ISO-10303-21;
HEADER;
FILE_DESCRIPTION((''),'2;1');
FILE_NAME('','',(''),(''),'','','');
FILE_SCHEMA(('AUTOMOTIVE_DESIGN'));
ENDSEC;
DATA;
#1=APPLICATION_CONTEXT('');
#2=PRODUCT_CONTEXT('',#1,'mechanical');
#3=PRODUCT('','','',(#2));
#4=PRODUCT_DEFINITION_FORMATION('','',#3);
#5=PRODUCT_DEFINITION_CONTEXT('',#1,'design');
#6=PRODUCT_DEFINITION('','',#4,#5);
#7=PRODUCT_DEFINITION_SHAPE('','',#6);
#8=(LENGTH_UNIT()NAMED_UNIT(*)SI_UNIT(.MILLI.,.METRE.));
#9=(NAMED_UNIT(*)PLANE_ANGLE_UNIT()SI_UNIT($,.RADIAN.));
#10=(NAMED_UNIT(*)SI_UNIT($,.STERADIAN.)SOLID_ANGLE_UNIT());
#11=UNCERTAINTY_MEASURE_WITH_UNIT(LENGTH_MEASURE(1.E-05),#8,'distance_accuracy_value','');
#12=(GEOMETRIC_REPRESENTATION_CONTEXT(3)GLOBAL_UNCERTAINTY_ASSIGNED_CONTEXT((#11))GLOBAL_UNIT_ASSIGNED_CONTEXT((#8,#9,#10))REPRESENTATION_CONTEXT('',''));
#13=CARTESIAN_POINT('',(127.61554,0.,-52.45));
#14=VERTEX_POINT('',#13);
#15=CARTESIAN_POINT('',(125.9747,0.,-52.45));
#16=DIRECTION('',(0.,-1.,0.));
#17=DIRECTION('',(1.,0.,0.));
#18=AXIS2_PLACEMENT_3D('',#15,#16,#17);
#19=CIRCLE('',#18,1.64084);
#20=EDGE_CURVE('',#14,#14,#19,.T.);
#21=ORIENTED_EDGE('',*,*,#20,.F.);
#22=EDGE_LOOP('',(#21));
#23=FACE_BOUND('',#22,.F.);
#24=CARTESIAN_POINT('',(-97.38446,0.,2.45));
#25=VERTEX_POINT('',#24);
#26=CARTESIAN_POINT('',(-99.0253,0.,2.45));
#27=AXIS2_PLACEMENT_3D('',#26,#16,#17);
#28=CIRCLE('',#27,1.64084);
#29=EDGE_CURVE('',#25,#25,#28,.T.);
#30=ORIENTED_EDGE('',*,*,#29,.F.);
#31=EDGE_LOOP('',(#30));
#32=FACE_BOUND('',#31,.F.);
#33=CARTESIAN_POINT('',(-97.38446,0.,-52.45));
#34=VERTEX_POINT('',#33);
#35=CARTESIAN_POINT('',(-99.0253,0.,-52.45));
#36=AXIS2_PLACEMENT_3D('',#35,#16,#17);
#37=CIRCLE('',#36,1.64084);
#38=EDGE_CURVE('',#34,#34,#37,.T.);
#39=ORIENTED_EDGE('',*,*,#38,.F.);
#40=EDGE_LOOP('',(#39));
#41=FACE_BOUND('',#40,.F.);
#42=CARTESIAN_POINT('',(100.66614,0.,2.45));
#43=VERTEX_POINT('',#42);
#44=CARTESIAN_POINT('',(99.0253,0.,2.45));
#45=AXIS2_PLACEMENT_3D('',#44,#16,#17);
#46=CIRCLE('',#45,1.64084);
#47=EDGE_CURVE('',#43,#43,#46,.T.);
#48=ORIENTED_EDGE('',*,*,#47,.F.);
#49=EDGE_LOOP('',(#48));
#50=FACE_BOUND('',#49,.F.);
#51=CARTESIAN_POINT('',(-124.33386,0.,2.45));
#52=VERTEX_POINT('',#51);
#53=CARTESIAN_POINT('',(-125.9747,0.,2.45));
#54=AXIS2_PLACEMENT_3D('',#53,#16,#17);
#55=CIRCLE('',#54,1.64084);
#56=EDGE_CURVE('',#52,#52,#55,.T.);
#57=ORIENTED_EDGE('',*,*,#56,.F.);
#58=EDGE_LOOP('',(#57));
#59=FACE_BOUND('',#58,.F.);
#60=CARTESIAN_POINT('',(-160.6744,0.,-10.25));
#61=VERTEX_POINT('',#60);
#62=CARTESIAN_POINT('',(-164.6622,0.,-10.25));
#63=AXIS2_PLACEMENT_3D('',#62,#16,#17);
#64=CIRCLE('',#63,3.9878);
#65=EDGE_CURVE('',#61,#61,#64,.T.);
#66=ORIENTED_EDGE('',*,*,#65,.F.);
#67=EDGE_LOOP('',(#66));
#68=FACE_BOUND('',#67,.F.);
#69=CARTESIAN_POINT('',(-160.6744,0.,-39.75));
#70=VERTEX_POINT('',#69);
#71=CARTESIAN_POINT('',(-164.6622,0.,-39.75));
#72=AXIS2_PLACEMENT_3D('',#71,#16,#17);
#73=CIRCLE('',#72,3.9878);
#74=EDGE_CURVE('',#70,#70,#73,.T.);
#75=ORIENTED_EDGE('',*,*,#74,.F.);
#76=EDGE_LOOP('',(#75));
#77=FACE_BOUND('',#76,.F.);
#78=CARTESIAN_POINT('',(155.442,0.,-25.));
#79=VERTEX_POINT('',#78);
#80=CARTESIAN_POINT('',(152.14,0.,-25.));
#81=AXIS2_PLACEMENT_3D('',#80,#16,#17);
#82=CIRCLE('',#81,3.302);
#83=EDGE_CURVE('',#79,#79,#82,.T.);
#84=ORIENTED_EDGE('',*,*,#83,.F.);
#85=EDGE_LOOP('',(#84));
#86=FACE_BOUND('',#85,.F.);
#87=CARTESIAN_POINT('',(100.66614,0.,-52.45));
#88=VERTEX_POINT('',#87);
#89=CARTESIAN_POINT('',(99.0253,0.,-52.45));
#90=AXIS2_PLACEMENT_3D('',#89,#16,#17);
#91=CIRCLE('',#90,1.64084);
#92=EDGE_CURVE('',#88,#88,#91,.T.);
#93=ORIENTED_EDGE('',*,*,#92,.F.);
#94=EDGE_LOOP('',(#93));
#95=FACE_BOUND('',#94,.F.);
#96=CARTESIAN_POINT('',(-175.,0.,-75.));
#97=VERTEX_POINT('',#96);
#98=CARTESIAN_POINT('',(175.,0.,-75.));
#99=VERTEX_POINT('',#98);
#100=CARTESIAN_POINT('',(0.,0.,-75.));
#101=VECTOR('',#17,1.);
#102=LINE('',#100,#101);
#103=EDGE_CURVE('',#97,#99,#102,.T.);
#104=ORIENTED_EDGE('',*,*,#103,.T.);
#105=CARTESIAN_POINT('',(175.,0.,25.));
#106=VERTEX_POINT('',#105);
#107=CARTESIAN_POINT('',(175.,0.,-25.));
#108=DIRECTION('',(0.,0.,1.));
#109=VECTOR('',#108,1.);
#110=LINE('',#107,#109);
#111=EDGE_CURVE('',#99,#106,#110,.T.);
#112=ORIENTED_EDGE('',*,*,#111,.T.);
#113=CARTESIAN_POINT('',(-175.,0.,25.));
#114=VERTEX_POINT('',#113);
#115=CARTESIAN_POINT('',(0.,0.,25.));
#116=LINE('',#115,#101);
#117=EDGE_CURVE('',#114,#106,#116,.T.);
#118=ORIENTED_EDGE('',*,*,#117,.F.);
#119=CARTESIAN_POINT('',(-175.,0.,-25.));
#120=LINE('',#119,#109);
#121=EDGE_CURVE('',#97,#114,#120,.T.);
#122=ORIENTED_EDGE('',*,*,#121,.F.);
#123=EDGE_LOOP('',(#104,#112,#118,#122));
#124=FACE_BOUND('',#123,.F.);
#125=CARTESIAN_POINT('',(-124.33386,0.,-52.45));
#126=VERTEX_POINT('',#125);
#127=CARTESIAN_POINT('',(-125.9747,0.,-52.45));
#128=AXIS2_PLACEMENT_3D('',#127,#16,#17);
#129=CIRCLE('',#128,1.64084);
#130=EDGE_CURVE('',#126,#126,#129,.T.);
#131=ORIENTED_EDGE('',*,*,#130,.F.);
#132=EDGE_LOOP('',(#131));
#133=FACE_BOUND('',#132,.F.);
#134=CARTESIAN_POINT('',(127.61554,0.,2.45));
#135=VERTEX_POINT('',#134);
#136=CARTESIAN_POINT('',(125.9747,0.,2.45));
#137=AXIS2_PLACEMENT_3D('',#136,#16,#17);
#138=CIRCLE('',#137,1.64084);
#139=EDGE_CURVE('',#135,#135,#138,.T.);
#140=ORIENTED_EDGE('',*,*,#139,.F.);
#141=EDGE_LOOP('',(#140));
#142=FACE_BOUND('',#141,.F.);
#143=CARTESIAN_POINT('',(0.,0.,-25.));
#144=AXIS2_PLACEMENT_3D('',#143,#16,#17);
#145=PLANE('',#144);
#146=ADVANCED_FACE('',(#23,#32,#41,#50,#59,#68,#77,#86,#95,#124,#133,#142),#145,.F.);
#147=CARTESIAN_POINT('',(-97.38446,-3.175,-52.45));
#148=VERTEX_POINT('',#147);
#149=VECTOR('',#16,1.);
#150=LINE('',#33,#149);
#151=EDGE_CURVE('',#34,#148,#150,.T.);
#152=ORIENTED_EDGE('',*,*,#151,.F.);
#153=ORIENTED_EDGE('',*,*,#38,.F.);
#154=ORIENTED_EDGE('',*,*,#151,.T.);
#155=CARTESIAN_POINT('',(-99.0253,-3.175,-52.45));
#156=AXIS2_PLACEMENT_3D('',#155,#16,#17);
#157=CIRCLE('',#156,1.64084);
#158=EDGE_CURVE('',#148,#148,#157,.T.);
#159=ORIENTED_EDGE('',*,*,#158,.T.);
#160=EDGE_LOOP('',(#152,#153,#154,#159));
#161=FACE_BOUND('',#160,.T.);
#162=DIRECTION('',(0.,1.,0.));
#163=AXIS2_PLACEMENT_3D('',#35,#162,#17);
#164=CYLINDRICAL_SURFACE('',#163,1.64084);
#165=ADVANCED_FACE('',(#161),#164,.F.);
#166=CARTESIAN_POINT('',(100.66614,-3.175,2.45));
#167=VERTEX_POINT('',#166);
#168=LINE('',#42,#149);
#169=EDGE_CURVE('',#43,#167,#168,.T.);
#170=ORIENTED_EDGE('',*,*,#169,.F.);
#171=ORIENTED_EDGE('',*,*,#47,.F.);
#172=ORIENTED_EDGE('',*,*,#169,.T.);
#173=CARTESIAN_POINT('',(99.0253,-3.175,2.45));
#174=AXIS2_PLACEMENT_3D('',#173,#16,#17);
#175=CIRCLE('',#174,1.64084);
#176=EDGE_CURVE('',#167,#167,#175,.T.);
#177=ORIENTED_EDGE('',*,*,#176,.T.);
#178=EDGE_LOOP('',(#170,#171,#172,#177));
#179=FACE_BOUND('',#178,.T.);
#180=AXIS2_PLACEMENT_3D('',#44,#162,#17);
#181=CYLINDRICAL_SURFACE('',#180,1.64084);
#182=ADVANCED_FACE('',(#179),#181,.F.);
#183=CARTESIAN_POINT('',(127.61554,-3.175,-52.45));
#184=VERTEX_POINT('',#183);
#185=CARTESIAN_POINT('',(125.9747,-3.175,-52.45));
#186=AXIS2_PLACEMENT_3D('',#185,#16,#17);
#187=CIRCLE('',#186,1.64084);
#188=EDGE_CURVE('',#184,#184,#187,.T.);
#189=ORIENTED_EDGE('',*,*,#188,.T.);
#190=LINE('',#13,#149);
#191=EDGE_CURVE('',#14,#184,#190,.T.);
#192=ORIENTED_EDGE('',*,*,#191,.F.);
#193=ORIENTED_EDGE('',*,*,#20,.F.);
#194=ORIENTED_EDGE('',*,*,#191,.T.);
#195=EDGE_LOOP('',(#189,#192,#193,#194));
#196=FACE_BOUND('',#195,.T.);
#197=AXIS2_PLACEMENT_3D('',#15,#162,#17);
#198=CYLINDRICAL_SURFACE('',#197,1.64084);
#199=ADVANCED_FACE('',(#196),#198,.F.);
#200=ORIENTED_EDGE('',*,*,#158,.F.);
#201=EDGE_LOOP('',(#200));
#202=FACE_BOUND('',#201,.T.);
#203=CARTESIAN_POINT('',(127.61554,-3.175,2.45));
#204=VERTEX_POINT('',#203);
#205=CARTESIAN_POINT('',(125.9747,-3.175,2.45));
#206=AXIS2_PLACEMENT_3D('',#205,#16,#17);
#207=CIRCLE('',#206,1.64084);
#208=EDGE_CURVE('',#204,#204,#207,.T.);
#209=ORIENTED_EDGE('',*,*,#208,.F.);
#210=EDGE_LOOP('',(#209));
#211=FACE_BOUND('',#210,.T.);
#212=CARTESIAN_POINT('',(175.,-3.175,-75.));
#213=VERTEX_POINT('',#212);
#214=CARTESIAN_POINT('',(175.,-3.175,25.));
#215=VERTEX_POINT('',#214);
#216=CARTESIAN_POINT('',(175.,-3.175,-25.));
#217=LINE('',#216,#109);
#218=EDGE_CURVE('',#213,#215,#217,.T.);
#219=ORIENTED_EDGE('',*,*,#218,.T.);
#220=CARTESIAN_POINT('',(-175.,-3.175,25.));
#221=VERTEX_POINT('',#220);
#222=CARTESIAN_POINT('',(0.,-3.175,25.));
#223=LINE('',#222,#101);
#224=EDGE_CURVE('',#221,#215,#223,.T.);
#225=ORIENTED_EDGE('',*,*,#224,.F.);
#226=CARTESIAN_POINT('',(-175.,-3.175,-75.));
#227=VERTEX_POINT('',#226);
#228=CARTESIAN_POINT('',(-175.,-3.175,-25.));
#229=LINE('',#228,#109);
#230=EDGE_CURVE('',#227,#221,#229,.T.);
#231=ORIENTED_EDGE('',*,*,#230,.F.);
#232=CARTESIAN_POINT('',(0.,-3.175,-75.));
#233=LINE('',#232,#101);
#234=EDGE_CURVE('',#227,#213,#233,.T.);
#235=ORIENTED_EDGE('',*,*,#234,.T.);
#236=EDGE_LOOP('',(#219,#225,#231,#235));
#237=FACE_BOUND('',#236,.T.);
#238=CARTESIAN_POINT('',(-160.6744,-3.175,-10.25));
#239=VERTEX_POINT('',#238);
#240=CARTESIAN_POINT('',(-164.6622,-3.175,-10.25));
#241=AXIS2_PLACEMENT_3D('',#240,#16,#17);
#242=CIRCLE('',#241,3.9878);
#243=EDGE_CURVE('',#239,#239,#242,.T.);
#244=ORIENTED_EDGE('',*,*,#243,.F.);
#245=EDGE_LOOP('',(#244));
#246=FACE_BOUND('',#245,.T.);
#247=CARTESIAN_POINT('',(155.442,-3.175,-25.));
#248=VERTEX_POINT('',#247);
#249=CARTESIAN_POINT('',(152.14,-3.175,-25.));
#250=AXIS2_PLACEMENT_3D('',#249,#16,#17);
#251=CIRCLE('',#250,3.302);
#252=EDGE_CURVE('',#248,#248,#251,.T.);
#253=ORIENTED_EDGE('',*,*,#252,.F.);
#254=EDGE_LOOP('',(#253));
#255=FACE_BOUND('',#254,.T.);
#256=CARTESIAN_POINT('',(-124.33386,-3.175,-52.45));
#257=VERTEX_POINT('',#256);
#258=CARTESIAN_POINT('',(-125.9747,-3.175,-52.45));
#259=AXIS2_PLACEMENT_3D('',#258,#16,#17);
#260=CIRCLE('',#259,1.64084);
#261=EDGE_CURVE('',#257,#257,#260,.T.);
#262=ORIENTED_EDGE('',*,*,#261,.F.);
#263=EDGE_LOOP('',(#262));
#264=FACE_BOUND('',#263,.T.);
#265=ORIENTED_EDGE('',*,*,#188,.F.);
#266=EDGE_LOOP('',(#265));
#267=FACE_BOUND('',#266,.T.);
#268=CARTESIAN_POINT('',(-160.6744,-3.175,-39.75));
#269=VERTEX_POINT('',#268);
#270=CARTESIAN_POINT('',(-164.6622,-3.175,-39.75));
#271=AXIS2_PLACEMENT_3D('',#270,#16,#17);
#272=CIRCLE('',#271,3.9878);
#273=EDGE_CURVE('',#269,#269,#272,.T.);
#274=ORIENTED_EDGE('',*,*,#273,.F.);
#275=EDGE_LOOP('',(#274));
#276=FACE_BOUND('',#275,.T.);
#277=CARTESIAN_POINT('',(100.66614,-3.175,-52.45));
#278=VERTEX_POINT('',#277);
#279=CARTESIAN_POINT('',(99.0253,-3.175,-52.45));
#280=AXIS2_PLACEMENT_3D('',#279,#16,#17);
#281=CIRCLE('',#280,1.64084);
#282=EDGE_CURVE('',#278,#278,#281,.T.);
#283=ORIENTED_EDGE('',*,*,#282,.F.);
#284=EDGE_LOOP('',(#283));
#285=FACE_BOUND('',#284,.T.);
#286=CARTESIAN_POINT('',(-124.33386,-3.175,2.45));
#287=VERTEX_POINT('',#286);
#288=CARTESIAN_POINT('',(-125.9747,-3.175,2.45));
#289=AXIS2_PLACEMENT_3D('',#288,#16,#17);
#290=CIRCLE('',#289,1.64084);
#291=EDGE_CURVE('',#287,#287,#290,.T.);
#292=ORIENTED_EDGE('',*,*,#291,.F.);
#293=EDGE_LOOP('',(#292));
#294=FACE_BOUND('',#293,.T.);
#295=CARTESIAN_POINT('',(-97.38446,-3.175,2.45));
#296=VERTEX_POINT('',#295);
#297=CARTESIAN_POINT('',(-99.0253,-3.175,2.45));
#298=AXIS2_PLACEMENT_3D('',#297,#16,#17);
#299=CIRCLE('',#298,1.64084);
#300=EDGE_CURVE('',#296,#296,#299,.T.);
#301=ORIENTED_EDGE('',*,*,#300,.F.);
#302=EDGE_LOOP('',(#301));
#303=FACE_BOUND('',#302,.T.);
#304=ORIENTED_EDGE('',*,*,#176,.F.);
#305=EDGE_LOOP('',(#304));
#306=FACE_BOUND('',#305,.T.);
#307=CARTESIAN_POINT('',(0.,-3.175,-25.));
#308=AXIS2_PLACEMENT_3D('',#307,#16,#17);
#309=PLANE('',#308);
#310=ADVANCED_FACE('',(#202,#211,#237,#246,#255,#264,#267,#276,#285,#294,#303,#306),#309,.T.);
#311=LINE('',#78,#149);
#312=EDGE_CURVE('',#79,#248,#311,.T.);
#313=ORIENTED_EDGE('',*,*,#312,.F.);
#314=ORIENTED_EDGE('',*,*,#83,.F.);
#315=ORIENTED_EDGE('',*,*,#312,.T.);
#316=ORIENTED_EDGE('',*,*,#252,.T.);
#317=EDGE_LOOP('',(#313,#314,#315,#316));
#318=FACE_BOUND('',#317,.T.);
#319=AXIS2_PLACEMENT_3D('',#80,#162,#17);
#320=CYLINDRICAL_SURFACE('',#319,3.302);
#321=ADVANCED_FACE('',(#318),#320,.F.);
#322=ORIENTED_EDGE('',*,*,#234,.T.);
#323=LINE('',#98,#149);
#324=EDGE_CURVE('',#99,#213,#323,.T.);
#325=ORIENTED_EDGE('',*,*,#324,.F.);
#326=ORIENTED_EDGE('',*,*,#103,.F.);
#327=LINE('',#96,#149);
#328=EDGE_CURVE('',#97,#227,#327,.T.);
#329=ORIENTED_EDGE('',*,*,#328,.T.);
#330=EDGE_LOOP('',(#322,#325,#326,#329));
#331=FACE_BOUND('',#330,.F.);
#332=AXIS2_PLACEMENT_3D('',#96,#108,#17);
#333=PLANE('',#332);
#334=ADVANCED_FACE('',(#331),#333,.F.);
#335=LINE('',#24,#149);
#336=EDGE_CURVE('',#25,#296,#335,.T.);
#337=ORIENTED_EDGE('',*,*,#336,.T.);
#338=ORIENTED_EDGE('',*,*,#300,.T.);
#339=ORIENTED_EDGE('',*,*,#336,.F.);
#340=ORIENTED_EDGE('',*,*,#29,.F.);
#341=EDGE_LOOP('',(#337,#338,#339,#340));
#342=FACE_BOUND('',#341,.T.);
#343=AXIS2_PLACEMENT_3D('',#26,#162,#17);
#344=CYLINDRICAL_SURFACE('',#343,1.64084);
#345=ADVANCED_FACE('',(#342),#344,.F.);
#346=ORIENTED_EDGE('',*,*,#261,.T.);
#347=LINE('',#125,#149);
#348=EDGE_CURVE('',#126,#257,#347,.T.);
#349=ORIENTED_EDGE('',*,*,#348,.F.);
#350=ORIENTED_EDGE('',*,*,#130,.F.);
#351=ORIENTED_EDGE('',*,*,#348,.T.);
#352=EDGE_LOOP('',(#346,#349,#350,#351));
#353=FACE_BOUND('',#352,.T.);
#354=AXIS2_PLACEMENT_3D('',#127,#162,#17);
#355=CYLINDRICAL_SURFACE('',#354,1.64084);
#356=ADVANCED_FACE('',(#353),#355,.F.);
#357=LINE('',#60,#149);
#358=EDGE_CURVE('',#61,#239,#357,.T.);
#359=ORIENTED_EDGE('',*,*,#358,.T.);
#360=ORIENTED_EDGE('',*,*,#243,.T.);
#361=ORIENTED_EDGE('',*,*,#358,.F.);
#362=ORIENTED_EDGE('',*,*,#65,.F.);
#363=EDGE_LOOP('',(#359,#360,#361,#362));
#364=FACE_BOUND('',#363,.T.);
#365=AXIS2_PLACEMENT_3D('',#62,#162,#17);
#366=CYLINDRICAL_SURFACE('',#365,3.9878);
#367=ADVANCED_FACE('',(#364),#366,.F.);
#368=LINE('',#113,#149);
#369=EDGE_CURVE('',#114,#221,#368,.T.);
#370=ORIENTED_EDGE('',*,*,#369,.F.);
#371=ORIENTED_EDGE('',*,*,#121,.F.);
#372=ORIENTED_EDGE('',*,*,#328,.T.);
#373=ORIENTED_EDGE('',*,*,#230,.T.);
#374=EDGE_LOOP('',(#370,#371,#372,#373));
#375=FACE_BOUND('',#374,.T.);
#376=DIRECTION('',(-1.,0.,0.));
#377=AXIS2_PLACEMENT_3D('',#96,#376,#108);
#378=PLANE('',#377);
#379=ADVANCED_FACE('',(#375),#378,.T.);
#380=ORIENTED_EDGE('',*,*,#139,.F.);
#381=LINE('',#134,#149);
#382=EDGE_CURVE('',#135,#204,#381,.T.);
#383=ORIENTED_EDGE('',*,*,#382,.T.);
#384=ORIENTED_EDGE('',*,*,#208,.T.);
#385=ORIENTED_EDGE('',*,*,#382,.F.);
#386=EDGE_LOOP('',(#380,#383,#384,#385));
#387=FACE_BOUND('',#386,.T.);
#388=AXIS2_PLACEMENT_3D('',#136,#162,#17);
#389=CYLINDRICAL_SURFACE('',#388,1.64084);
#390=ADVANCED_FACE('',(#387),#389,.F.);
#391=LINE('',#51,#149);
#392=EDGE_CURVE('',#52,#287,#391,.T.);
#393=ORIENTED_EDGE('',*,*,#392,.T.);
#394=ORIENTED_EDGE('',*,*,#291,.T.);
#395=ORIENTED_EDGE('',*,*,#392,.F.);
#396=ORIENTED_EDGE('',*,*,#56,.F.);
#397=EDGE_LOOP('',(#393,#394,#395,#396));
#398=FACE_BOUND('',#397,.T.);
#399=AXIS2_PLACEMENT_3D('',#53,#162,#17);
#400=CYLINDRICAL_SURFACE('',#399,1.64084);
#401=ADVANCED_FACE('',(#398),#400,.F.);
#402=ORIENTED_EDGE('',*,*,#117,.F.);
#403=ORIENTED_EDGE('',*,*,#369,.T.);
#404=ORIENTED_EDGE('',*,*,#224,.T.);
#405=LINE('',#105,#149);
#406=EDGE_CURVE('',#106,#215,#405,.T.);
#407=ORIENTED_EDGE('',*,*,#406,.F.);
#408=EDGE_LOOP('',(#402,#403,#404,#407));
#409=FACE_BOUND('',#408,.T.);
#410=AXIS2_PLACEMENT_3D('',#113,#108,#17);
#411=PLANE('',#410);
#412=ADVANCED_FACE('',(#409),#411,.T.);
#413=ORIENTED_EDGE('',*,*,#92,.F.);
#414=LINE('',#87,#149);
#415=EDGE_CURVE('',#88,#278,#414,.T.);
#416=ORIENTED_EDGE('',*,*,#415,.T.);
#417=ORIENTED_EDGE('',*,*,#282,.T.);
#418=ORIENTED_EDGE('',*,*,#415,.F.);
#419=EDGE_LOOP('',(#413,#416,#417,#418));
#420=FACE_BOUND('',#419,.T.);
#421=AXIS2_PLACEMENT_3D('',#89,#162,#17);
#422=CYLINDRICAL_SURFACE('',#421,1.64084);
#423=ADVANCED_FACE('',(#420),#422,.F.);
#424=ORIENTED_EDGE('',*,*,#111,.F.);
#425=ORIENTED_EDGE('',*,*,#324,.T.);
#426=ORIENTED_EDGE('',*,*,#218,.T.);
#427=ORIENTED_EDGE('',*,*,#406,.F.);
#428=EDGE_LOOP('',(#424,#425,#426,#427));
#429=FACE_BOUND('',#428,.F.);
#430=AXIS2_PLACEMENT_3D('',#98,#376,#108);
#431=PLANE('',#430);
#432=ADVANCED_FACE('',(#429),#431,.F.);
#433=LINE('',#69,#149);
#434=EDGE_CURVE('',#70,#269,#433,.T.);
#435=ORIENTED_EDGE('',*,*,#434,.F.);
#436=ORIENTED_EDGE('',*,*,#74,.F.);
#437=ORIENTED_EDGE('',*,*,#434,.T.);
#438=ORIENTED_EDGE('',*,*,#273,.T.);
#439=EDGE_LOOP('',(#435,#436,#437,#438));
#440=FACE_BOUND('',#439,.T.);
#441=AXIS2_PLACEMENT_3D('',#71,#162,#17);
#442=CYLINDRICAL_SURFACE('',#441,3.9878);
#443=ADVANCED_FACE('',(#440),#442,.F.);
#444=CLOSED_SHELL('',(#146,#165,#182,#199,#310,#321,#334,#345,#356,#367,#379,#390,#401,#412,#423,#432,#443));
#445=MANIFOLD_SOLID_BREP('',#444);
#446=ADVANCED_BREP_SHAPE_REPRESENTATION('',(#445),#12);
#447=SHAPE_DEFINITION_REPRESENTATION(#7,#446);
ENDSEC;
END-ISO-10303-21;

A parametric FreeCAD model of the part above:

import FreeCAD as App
import Part
import Sketcher

V = App.Vector
Q = App.Units.Quantity


def add_polygon(sketch, points):
    """Adds a closed chain of lines whose ends are joined by coincident constraints."""
    first, n = sketch.GeometryCount, len(points)
    for a, b in zip(points, points[1:] + points[:1]):
        sketch.addGeometry(Part.LineSegment(App.Vector(*a, 0), App.Vector(*b, 0)), False)
    for i in range(n):
        sketch.addConstraint(Sketcher.Constraint("Coincident", first + i, 2, first + (i + 1) % n, 1))

doc = App.newDocument("Part")
body = doc.addObject("PartDesign::Body", "Body")

# Sketch on XZ plane
sketch1 = doc.addObject("Sketcher::SketchObject", "Sketch")
body.addObject(sketch1)
sketch1.AttachmentSupport = (doc.XZ_Plane, [""])
sketch1.MapMode = "FlatFace"
add_polygon(sketch1, [(-175, 25), (-175, -75), (175, -75), (175, 25)])  # lines 0-3
sketch1.addGeometry(Part.Circle(V(-126, -52.5, 0), V(0, 0, 1), 1.6), False)  # 4
sketch1.addGeometry(Part.Circle(V(-99, -52.5, 0), V(0, 0, 1), 1.6), False)  # 5
sketch1.addGeometry(Part.Circle(V(-164.7, -39.8, 0), V(0, 0, 1), 4), False)  # 6
sketch1.addGeometry(Part.Circle(V(99, -52.5, 0), V(0, 0, 1), 1.6), False)  # 7
sketch1.addGeometry(Part.Circle(V(126, -52.5, 0), V(0, 0, 1), 1.6), False)  # 8
sketch1.addGeometry(Part.Circle(V(-164.7, -10.2, 0), V(0, 0, 1), 4), False)  # 9
sketch1.addGeometry(Part.Circle(V(-126, 2.5, 0), V(0, 0, 1), 1.6), False)  # 10
sketch1.addGeometry(Part.Circle(V(-99, 2.5, 0), V(0, 0, 1), 1.6), False)  # 11
sketch1.addGeometry(Part.Circle(V(152.1, -25, 0), V(0, 0, 1), 3.3), False)  # 12
sketch1.addGeometry(Part.Circle(V(99, 2.5, 0), V(0, 0, 1), 1.6), False)  # 13
sketch1.addGeometry(Part.Circle(V(126, 2.5, 0), V(0, 0, 1), 1.6), False)  # 14
sketch1.addConstraint(Sketcher.Constraint("Vertical", 0))
sketch1.addConstraint(Sketcher.Constraint("Horizontal", 1))
sketch1.addConstraint(Sketcher.Constraint("Vertical", 2))
sketch1.addConstraint(Sketcher.Constraint("Horizontal", 3))
sketch1.addConstraint(Sketcher.Constraint("Equal", 4, 5))
sketch1.addConstraint(Sketcher.Constraint("Equal", 5, 7))
sketch1.addConstraint(Sketcher.Constraint("Equal", 7, 8))
sketch1.addConstraint(Sketcher.Constraint("Equal", 6, 9))
sketch1.addConstraint(Sketcher.Constraint("Equal", 8, 10))
sketch1.addConstraint(Sketcher.Constraint("Equal", 10, 11))
sketch1.addConstraint(Sketcher.Constraint("Equal", 11, 13))
sketch1.addConstraint(Sketcher.Constraint("Equal", 13, 14))
sketch1.addConstraint(Sketcher.Constraint("Symmetric", 5, 3, 7, 3, -2))
sketch1.addConstraint(Sketcher.Constraint("Symmetric", 4, 3, 8, 3, -2))
sketch1.addConstraint(Sketcher.Constraint("Symmetric", 11, 3, 13, 3, -2))
sketch1.addConstraint(Sketcher.Constraint("Symmetric", 10, 3, 14, 3, -2))
sketch1.addConstraint(Sketcher.Constraint("Horizontal", 4, 3, 5, 3))
sketch1.addConstraint(Sketcher.Constraint("Horizontal", 10, 3, 11, 3))
sketch1.addConstraint(Sketcher.Constraint("Vertical", 6, 3, 9, 3))
sketch1.addConstraint(Sketcher.Constraint("Vertical", 4, 3, 10, 3))
sketch1.addConstraint(Sketcher.Constraint("Vertical", 5, 3, 11, 3))
sketch1.addConstraint(Sketcher.Constraint("Diameter", 12, Q("0.26 in")))
sketch1.addConstraint(Sketcher.Constraint("Diameter", 6, Q("0.314 in")))
sketch1.addConstraint(Sketcher.Constraint("Diameter", 4, Q("0.1292 in")))
sketch1.addConstraint(Sketcher.Constraint("DistanceY", 4, 3, 6, 3, Q("0.5 in")))
sketch1.addConstraint(Sketcher.Constraint("DistanceY", 9, 3, 10, 3, Q("0.5 in")))
sketch1.addConstraint(Sketcher.Constraint("DistanceX", 12, 3, 1, 2, Q("0.9 in")))
sketch1.addConstraint(Sketcher.Constraint("DistanceX", 4, 3, 5, 3, Q("1.061 in")))
sketch1.addConstraint(Sketcher.Constraint("DistanceX", 0, 2, 6, 3, Q("0.407 in")))
sketch1.addConstraint(Sketcher.Constraint("DistanceX", 1, 1, 1, 2, 350.0))
sketch1.addConstraint(Sketcher.Constraint("DistanceY", 0, 2, 0, 1, 100.0))
sketch1.addConstraint(Sketcher.Constraint("DistanceX", 4, 3, -1, 1, 125.9747))
sketch1.addConstraint(Sketcher.Constraint("DistanceY", 4, 3, -1, 1, 52.45))
sketch1.addConstraint(Sketcher.Constraint("DistanceX", 6, 3, -1, 1, 164.6622))
sketch1.addConstraint(Sketcher.Constraint("DistanceY", 9, 3, -1, 1, 10.25))
sketch1.addConstraint(Sketcher.Constraint("DistanceY", 12, 3, -1, 1, 25.0))
sketch1.addConstraint(Sketcher.Constraint("DistanceY", 0, 2, -1, 1, 75.0))
pad1 = doc.addObject("PartDesign::Pad", "Pad")
body.addObject(pad1)
pad1.Profile = sketch1
pad1.Length = Q("0.125 in")

doc.recompute()
